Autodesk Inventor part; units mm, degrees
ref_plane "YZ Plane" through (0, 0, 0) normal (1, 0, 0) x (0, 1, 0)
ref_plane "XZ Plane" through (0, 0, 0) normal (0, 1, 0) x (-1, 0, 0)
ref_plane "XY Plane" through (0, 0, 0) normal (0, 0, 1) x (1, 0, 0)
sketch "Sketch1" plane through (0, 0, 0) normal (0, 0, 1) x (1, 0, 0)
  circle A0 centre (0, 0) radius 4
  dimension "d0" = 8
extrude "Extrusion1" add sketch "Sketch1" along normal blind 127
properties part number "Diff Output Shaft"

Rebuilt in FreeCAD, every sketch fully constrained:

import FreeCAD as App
import Part
import Sketcher
Q = App.Units.Quantity

doc = App.newDocument("Part")
body = doc.addObject("PartDesign::Body", "Body")

sketch1 = body.newObject("Sketcher::SketchObject", "Sketch")
sketch1.AttachmentSupport = (doc.getObject("XY_Plane"), [""])
sketch1.MapMode = "FlatFace"
sketch1.addGeometry(Part.Circle(App.Vector(0, 0, 0), App.Vector(0, 0, 1), 4), False)
sketch1.addConstraint(Sketcher.Constraint("Coincident", 0, 3, -1, 1))
sketch1.addConstraint(Sketcher.Constraint("Diameter", 0, Q("8 mm")))
pad1 = body.newObject("PartDesign::Pad", "Pad")
pad1.Profile = sketch1
pad1.Length = 127

doc.recompute()
